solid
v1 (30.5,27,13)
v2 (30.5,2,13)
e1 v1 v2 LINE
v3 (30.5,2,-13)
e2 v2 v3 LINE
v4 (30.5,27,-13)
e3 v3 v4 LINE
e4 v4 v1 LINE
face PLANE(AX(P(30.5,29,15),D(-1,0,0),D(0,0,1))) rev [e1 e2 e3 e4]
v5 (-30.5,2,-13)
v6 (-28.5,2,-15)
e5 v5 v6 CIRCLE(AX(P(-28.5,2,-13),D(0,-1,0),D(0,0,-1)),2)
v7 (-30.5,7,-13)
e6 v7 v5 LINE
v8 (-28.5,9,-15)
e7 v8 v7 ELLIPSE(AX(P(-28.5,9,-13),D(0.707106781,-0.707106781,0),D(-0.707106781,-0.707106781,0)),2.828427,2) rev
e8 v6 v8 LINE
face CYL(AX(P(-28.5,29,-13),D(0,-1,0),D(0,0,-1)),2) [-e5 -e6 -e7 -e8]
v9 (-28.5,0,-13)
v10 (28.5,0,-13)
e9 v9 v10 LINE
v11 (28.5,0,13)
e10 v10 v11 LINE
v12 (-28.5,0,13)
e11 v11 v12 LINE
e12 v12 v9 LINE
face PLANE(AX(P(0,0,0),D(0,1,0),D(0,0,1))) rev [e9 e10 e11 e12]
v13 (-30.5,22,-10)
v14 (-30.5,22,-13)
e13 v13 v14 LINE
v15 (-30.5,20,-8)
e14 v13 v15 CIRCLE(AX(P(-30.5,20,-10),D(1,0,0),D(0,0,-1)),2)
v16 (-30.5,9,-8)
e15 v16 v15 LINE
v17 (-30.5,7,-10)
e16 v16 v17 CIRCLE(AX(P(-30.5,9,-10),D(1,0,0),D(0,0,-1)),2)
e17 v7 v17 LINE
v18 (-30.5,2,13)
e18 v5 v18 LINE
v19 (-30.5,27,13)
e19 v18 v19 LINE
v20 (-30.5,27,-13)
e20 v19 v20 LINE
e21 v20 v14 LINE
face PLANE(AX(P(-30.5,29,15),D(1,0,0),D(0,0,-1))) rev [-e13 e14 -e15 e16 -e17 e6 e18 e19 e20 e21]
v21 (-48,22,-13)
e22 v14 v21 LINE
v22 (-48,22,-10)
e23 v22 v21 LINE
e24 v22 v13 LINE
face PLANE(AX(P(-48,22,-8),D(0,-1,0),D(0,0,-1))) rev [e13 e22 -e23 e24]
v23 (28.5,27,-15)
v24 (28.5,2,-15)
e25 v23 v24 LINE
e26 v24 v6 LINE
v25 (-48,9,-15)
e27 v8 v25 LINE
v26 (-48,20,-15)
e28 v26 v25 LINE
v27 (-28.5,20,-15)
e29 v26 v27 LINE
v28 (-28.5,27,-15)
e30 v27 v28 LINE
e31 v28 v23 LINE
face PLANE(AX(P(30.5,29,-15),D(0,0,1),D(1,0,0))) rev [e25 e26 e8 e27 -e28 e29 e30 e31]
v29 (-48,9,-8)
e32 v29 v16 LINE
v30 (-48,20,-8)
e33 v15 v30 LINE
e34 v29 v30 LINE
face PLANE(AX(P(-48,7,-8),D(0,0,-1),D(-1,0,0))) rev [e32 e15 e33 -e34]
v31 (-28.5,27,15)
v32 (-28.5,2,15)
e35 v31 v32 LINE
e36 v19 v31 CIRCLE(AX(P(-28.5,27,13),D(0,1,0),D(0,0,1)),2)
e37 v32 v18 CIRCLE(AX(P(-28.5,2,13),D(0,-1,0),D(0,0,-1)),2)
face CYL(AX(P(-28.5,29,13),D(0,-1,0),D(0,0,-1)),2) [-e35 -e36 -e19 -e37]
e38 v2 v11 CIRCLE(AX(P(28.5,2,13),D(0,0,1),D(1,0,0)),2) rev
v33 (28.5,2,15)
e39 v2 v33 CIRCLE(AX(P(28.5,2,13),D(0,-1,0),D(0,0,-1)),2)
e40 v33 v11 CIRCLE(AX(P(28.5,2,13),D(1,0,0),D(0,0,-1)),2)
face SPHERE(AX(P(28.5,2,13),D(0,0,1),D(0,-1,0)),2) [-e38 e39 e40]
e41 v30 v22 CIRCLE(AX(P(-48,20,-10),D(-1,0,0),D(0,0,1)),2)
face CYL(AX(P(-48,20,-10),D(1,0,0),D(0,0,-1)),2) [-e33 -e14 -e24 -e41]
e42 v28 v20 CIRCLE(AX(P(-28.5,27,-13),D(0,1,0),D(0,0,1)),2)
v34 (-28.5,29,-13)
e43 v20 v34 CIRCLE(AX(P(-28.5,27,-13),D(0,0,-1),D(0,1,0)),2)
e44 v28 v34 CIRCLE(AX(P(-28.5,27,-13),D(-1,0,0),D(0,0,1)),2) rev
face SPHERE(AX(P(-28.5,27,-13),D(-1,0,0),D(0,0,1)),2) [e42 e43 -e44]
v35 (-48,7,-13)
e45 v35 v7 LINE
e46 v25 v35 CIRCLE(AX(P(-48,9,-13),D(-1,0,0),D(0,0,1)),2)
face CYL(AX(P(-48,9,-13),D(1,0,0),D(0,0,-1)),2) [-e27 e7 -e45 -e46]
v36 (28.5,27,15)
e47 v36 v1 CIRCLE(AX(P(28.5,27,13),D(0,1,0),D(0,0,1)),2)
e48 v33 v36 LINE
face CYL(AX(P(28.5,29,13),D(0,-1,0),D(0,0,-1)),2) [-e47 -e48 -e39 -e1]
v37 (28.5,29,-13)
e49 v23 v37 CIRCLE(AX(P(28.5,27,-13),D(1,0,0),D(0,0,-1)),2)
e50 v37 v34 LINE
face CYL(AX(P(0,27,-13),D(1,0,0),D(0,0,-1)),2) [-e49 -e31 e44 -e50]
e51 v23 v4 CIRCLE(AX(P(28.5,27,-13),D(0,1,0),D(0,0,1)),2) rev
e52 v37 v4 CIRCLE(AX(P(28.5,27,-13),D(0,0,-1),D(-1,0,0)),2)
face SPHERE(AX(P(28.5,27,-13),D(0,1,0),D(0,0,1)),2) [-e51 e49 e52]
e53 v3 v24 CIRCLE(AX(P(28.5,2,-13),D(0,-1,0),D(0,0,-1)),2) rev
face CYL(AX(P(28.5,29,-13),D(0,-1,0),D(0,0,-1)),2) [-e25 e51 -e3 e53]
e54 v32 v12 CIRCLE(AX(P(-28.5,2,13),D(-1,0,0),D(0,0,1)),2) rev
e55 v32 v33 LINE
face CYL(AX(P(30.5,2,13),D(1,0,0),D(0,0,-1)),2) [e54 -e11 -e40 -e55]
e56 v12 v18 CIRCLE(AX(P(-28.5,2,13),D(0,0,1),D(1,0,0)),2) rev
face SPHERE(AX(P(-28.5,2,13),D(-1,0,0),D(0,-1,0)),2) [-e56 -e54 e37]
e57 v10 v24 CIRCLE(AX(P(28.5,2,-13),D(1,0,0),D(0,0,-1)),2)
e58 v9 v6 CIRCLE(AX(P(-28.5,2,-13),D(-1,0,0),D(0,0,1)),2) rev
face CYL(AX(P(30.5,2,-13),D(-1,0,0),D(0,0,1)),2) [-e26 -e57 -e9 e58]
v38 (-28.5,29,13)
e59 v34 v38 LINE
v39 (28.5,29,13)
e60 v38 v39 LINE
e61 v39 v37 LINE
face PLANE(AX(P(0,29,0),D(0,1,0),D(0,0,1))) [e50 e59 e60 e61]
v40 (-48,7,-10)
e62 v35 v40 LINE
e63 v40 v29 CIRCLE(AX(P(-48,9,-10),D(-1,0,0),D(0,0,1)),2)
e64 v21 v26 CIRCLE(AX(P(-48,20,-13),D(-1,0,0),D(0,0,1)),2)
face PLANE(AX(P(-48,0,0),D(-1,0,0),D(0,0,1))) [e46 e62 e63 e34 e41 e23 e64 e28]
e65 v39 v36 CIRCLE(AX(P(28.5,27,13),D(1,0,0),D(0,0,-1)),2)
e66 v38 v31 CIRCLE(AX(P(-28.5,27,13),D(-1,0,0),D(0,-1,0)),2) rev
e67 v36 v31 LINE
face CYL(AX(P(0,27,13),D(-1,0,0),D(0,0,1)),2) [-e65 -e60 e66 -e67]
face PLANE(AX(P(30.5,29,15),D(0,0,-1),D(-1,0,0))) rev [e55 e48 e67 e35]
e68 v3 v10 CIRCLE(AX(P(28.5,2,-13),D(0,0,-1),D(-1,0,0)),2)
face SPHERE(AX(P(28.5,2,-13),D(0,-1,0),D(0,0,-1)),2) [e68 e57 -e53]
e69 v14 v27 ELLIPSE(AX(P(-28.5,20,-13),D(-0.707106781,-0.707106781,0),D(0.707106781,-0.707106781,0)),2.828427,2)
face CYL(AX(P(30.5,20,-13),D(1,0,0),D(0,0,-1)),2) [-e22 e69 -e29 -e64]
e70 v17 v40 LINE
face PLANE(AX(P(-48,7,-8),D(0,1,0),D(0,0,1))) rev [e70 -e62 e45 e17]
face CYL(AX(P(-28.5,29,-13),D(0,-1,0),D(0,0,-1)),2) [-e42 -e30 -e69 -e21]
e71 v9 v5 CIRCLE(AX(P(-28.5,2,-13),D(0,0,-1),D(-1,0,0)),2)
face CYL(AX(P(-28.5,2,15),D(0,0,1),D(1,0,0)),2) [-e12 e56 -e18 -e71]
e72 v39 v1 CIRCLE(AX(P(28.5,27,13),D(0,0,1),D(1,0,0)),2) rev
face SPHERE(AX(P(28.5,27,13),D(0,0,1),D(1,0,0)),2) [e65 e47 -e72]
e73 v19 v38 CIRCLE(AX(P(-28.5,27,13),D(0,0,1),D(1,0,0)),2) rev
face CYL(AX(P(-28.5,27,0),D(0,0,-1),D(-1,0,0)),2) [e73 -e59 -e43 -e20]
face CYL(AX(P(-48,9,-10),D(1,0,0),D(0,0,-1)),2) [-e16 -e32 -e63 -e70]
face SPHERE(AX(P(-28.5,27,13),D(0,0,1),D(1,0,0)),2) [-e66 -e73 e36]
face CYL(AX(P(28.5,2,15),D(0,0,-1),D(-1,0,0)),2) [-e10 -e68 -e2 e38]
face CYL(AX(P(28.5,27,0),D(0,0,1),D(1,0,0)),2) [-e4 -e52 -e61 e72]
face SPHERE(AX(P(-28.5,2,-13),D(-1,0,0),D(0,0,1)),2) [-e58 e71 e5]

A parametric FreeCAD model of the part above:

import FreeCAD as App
import Part
import Sketcher

V = App.Vector
Q = App.Units.Quantity


def edges_at(feature, points):
    """Names of the edges that pass closest to the given points."""
    edges = feature.Shape.Edges
    near = lambda p: min(range(len(edges)), key=lambda i: edges[i].distToShape(Part.Vertex(*p))[0])
    return sorted({f"Edge{near(p) + 1}" for p in points})


def add_polygon(sketch, points):
    """Adds a closed chain of lines whose ends are joined by coincident constraints."""
    first, n = sketch.GeometryCount, len(points)
    for a, b in zip(points, points[1:] + points[:1]):
        sketch.addGeometry(Part.LineSegment(App.Vector(*a, 0), App.Vector(*b, 0)), False)
    for i in range(n):
        sketch.addConstraint(Sketcher.Constraint("Coincident", first + i, 2, first + (i + 1) % n, 1))

doc = App.newDocument("Part")
body = doc.addObject("PartDesign::Body", "Body")

sketch1 = doc.addObject("Sketcher::SketchObject", "Sketch")
body.addObject(sketch1)
sketch1.AttachmentSupport = (doc.XZ_Plane, [""])
sketch1.MapMode = "FlatFace"
add_polygon(sketch1, [(-30, -15), (-30, 15), (30, 15), (30, -15)])
sketch1.addConstraint(Sketcher.Constraint("Vertical", 0))
sketch1.addConstraint(Sketcher.Constraint("Horizontal", 1))
sketch1.addConstraint(Sketcher.Constraint("Vertical", 2))
sketch1.addConstraint(Sketcher.Constraint("Horizontal", 3))
sketch1.addConstraint(Sketcher.Constraint("Symmetric", 0, 2, 2, 2, -1, 1))
sketch1.addConstraint(Sketcher.Constraint("DistanceX", 1, 1, 1, 2, Q("61 mm")))
sketch1.addConstraint(Sketcher.Constraint("DistanceY", 0, 1, 0, 2, Q("30 mm")))
pad1 = doc.addObject("PartDesign::Pad", "Pad")
body.addObject(pad1)
pad1.Profile = sketch1
pad1.Length = 29
pad1.Reversed = True

sketch2 = doc.addObject("Sketcher::SketchObject", "Sketch001")
body.addObject(sketch2)
sketch2.AttachmentSupport = (doc.YZ_Plane, [""])
sketch2.MapMode = "FlatFace"
sketch2.AttachmentOffset = App.Placement(V(0, 0, -30.5), App.Rotation())
add_polygon(sketch2, [(22, -15), (7, -15), (7, -8), (22, -8)])
sketch2.addConstraint(Sketcher.Constraint("Horizontal", 0))
sketch2.addConstraint(Sketcher.Constraint("Vertical", 1))
sketch2.addConstraint(Sketcher.Constraint("Horizontal", 2))
sketch2.addConstraint(Sketcher.Constraint("Vertical", 3))
sketch2.addConstraint(Sketcher.Constraint("DistanceX", 0, 2, 0, 1, Q("15 mm")))
sketch2.addConstraint(Sketcher.Constraint("DistanceY", 1, 1, 1, 2, Q("7 mm")))
sketch2.addConstraint(Sketcher.Constraint("DistanceX", -1, 1, 0, 2, Q("7 mm")))
sketch2.addConstraint(Sketcher.Constraint("DistanceY", 0, 2, -1, 1, Q("15 mm")))
pad2 = doc.addObject("PartDesign::Pad", "Pad001")
body.addObject(pad2)
pad2.Profile = sketch2
pad2.Length = 17.5
pad2.Reversed = True
doc.recompute()

fillet = doc.addObject("PartDesign::Fillet", "Fillet")
body.addObject(fillet)
fillet.Base = (pad2, edges_at(pad2, [
    (-39.25, 22, -15),
    (-39.25, 7, -15),
    (-39.25, 7, -8),
    (-39.25, 22, -8),
]))
fillet.Radius = 2
doc.recompute()

fillet2 = doc.addObject("PartDesign::Fillet", "Fillet001")
body.addObject(fillet2)
fillet2.Base = (fillet, edges_at(fillet, [
    (30.5, 14.5, -15),
    (0, 29, -15),
    (30.5, 29, 0),
    (-30.5, 29, 0),
    (30.5, 0, 0),
    (0, 0, -15),
    (-30.5, 0, 0),
    (-30.5, 14.5, 15),
    (0, 29, 15),
    (30.5, 14.5, 15),
    (0, 0, 15),
    (-30.5, 24.5, -15),
    (-30.5, 4.5, -15),
]))
fillet2.Radius = 2

doc.recompute()
